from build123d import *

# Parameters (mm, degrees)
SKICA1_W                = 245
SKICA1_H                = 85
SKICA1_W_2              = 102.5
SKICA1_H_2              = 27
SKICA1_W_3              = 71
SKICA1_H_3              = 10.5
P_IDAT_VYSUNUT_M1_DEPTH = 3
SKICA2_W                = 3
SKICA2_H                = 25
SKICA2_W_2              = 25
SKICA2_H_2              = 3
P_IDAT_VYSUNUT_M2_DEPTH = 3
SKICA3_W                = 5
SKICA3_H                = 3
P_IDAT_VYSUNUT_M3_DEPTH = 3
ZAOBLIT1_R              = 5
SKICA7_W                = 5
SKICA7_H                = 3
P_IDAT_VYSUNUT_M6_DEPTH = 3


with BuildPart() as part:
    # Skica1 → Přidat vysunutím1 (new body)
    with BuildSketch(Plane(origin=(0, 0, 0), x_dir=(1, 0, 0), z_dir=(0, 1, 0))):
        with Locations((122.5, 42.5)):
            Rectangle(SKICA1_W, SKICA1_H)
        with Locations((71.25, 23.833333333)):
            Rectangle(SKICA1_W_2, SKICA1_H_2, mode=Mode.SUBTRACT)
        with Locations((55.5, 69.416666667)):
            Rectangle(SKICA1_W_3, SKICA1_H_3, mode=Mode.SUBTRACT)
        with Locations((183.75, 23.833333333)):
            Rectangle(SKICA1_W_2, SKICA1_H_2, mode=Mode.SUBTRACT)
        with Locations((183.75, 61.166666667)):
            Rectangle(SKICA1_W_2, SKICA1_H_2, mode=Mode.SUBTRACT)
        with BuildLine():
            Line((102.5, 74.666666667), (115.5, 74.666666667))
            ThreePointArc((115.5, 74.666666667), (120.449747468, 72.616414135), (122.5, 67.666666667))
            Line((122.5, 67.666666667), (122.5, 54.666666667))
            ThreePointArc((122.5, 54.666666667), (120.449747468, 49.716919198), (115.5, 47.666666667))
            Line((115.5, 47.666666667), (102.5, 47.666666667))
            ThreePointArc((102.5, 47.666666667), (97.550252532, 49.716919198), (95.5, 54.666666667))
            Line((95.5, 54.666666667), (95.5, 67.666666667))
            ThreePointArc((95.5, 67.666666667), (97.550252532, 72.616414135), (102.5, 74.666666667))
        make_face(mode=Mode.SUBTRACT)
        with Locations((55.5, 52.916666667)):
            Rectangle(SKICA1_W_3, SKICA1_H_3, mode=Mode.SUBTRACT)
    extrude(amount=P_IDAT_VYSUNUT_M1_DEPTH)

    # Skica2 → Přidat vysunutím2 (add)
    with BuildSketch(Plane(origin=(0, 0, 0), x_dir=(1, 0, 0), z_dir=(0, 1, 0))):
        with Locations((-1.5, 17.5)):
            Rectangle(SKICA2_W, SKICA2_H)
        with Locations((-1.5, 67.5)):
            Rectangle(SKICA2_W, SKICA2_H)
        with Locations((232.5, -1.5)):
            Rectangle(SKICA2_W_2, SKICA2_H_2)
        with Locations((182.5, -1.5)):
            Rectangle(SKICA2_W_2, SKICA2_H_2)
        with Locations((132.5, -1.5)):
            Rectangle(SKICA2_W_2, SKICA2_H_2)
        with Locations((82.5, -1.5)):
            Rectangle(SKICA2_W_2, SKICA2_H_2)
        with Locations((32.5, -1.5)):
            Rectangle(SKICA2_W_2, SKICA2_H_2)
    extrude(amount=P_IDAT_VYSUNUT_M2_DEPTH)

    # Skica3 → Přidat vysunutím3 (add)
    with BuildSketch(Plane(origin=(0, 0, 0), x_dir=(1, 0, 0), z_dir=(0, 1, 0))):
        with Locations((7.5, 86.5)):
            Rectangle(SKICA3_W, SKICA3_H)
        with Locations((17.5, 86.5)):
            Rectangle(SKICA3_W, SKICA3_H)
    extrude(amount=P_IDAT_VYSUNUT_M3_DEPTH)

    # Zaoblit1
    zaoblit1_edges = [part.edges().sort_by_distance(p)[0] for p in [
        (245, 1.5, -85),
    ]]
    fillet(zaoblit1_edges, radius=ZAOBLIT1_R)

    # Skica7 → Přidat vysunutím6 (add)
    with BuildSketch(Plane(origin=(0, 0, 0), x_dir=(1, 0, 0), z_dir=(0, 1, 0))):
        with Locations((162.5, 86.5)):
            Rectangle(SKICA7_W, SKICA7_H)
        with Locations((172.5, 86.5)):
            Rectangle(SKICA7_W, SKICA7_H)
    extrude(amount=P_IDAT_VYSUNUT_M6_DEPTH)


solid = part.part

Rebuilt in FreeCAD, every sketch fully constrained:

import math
import FreeCAD as App
import Part
import Sketcher
from FreeCAD import Vector
Q = App.Units.Quantity


def edges_at(feature, points):
    """Names of the edges that pass closest to the given points."""
    edges = feature.Shape.Edges
    near = lambda p: min(range(len(edges)), key=lambda i: edges[i].distToShape(Part.Vertex(*p))[0])
    return sorted({f"Edge{near(p) + 1}" for p in points})

doc = App.newDocument("Part")
body = doc.addObject("PartDesign::Body", "Body")

# Sketch on XZ plane
sketch1 = doc.addObject("Sketcher::SketchObject", "Sketch")
body.addObject(sketch1)
sketch1.AttachmentSupport = (doc.XZ_Plane, [""])
sketch1.MapMode = "FlatFace"
sketch1.addGeometry([
    Part.LineSegment(Vector(0, -85, 0), Vector(0, 0, 0)),  # 0
    Part.LineSegment(Vector(0, 0, 0), Vector(245, 0, 0)),  # 1
    Part.LineSegment(Vector(245, 0, 0), Vector(245, -85, 0)),  # 2
    Part.LineSegment(Vector(245, -85, 0), Vector(0, -85, 0)),  # 3
    Part.LineSegment(Vector(122.5, -10.333333, 0), Vector(20, -10.333333, 0)),  # 4
    Part.LineSegment(Vector(20, -10.333333, 0), Vector(20, -37.333333, 0)),  # 5
    Part.LineSegment(Vector(20, -37.333333, 0), Vector(122.5, -37.333333, 0)),  # 6
    Part.LineSegment(Vector(122.5, -37.333333, 0), Vector(122.5, -10.333333, 0)),  # 7
    Part.LineSegment(Vector(235, -10.333333, 0), Vector(132.5, -10.333333, 0)),  # 8
    Part.LineSegment(Vector(132.5, -10.333333, 0), Vector(132.5, -37.333333, 0)),  # 9
    Part.LineSegment(Vector(132.5, -37.333333, 0), Vector(235, -37.333333, 0)),  # 10
    Part.LineSegment(Vector(235, -37.333333, 0), Vector(235, -10.333333, 0)),  # 11
    Part.LineSegment(Vector(91, -47.666667, 0), Vector(20, -47.666667, 0)),  # 12
    Part.LineSegment(Vector(20, -47.666667, 0), Vector(20, -58.166667, 0)),  # 13
    Part.LineSegment(Vector(20, -58.166667, 0), Vector(91, -58.166667, 0)),  # 14
    Part.LineSegment(Vector(91, -58.166667, 0), Vector(91, -47.666667, 0)),  # 15
    Part.LineSegment(Vector(91, -64.166667, 0), Vector(20, -64.166667, 0)),  # 16
    Part.LineSegment(Vector(20, -64.166667, 0), Vector(20, -74.666667, 0)),  # 17
    Part.LineSegment(Vector(20, -74.666667, 0), Vector(91, -74.666667, 0)),  # 18
    Part.LineSegment(Vector(91, -74.666667, 0), Vector(91, -64.166667, 0)),  # 19
    Part.ArcOfCircle(Part.Circle(Vector(102.5, -67.666667, 0), Vector(0, 0, 1), 7), math.radians(-180), math.radians(-90)),  # 20
    Part.LineSegment(Vector(102.5, -74.666667, 0), Vector(115.5, -74.666667, 0)),  # 21
    Part.ArcOfCircle(Part.Circle(Vector(115.5, -67.666667, 0), Vector(0, 0, 1), 7), math.radians(-90), math.radians(0)),  # 22
    Part.LineSegment(Vector(122.5, -67.666667, 0), Vector(122.5, -54.666667, 0)),  # 23
    Part.ArcOfCircle(Part.Circle(Vector(115.5, -54.666667, 0), Vector(0, 0, 1), 7), math.radians(0), math.radians(90)),  # 24
    Part.LineSegment(Vector(115.5, -47.666667, 0), Vector(102.5, -47.666667, 0)),  # 25
    Part.ArcOfCircle(Part.Circle(Vector(102.5, -54.666667, 0), Vector(0, 0, 1), 7), math.radians(90), math.radians(180)),  # 26
    Part.LineSegment(Vector(95.5, -54.666667, 0), Vector(95.5, -67.666667, 0)),  # 27
    Part.LineSegment(Vector(235, -47.666667, 0), Vector(132.5, -47.666667, 0)),  # 28
    Part.LineSegment(Vector(132.5, -47.666667, 0), Vector(132.5, -74.666667, 0)),  # 29
    Part.LineSegment(Vector(132.5, -74.666667, 0), Vector(235, -74.666667, 0)),  # 30
    Part.LineSegment(Vector(235, -74.666667, 0), Vector(235, -47.666667, 0)),  # 31
], False)
sketch1.addConstraint([
    Sketcher.Constraint("Coincident", 0, 2, 1, 1),
    Sketcher.Constraint("Coincident", 1, 2, 2, 1),
    Sketcher.Constraint("Coincident", 2, 2, 3, 1),
    Sketcher.Constraint("Coincident", 3, 2, 0, 1),
    Sketcher.Constraint("Coincident", 4, 2, 5, 1),
    Sketcher.Constraint("Coincident", 5, 2, 6, 1),
    Sketcher.Constraint("Coincident", 6, 2, 7, 1),
    Sketcher.Constraint("Coincident", 7, 2, 4, 1),
    Sketcher.Constraint("Coincident", 8, 2, 9, 1),
    Sketcher.Constraint("Coincident", 9, 2, 10, 1),
    Sketcher.Constraint("Coincident", 10, 2, 11, 1),
    Sketcher.Constraint("Coincident", 11, 2, 8, 1),
    Sketcher.Constraint("Coincident", 12, 2, 13, 1),
    Sketcher.Constraint("Coincident", 13, 2, 14, 1),
    Sketcher.Constraint("Coincident", 14, 2, 15, 1),
    Sketcher.Constraint("Coincident", 15, 2, 12, 1),
    Sketcher.Constraint("Coincident", 16, 2, 17, 1),
    Sketcher.Constraint("Coincident", 17, 2, 18, 1),
    Sketcher.Constraint("Coincident", 18, 2, 19, 1),
    Sketcher.Constraint("Coincident", 19, 2, 16, 1),
    Sketcher.Constraint("Tangent", 20, 2, 21, 1),
    Sketcher.Constraint("Tangent", 21, 2, 22, 1),
    Sketcher.Constraint("Tangent", 22, 2, 23, 1),
    Sketcher.Constraint("Tangent", 23, 2, 24, 1),
    Sketcher.Constraint("Tangent", 24, 2, 25, 1),
    Sketcher.Constraint("Tangent", 25, 2, 26, 1),
    Sketcher.Constraint("Tangent", 26, 2, 27, 1),
    Sketcher.Constraint("Tangent", 27, 2, 20, 1),
    Sketcher.Constraint("Coincident", 28, 2, 29, 1),
    Sketcher.Constraint("Coincident", 29, 2, 30, 1),
    Sketcher.Constraint("Coincident", 30, 2, 31, 1),
    Sketcher.Constraint("Coincident", 31, 2, 28, 1),
    Sketcher.Constraint("Vertical", 0),
    Sketcher.Constraint("Horizontal", 1),
    Sketcher.Constraint("Vertical", 2),
    Sketcher.Constraint("Horizontal", 3),
    Sketcher.Constraint("Horizontal", 4),
    Sketcher.Constraint("Vertical", 5),
    Sketcher.Constraint("Horizontal", 6),
    Sketcher.Constraint("Vertical", 7),
    Sketcher.Constraint("Horizontal", 8),
    Sketcher.Constraint("Vertical", 9),
    Sketcher.Constraint("Horizontal", 10),
    Sketcher.Constraint("Vertical", 11),
    Sketcher.Constraint("Horizontal", 12),
    Sketcher.Constraint("Vertical", 13),
    Sketcher.Constraint("Horizontal", 14),
    Sketcher.Constraint("Vertical", 15),
    Sketcher.Constraint("Horizontal", 16),
    Sketcher.Constraint("Vertical", 17),
    Sketcher.Constraint("Horizontal", 18),
    Sketcher.Constraint("Vertical", 19),
    Sketcher.Constraint("Horizontal", 21),
    Sketcher.Constraint("Vertical", 23),
    Sketcher.Constraint("Horizontal", 25),
    Sketcher.Constraint("Vertical", 27),
    Sketcher.Constraint("Horizontal", 28),
    Sketcher.Constraint("Vertical", 29),
    Sketcher.Constraint("Horizontal", 30),
    Sketcher.Constraint("Vertical", 31),
    Sketcher.Constraint("Coincident", 0, 2, -1, 1),
    Sketcher.Constraint("Equal", 20, 22),
    Sketcher.Constraint("Equal", 22, 24),
    Sketcher.Constraint("Equal", 24, 26),
    Sketcher.Constraint("Horizontal", 7, 2, 8, 2),
    Sketcher.Constraint("Horizontal", 6, 2, 9, 2),
    Sketcher.Constraint("Horizontal", 18, 2, 20, 2),
    Sketcher.Constraint("Horizontal", 15, 2, 24, 2),
    Sketcher.Constraint("Horizontal", 25, 2, 28, 2),
    Sketcher.Constraint("Horizontal", 21, 2, 29, 2),
    Sketcher.Constraint("Vertical", 5, 2, 12, 2),
    Sketcher.Constraint("Vertical", 13, 2, 16, 2),
    Sketcher.Constraint("Vertical", 15, 2, 18, 2),
    Sketcher.Constraint("Vertical", 7, 2, 22, 2),
    Sketcher.Constraint("Vertical", 9, 2, 28, 2),
    Sketcher.Constraint("Vertical", 11, 2, 30, 2),
    Sketcher.Constraint("Equal", 6, 8),
    Sketcher.Constraint("Equal", 15, 17),
    Sketcher.Constraint("Equal", 25, 23),
    Sketcher.Constraint("Equal", 11, 29),
    Sketcher.Constraint("Radius", 20, Q("7 mm")),
    Sketcher.Constraint("DistanceX", 1, 1, 1, 2, Q("245 mm")),
    Sketcher.Constraint("DistanceX", 12, 2, 12, 1, Q("71 mm")),
    Sketcher.Constraint("DistanceX", 21, 1, 21, 2, Q("13 mm")),
    Sketcher.Constraint("DistanceY", 0, 1, 0, 2, Q("85 mm")),
    Sketcher.Constraint("DistanceX", 4, 2, 4, 1, Q("102.5 mm")),
    Sketcher.Constraint("DistanceY", 13, 2, 13, 1, Q("10.5 mm")),
    Sketcher.Constraint("DistanceX", -1, 1, 4, 2, Q("20 mm")),
    Sketcher.Constraint("DistanceX", -1, 1, 10, 2, Q("235 mm")),
    Sketcher.Constraint("DistanceY", 20, 3, -1, 1, Q("67.666667 mm")),
    Sketcher.Constraint("DistanceY", 4, 2, -1, 1, Q("10.333333 mm")),
])
pad1 = doc.addObject("PartDesign::Pad", "Pad")
body.addObject(pad1)
pad1.Profile = sketch1
pad1.Length = 3
pad1.Reversed = True

# Sketch on XZ plane
sketch2 = doc.addObject("Sketcher::SketchObject", "Sketch001")
body.addObject(sketch2)
sketch2.AttachmentSupport = (doc.XZ_Plane, [""])
sketch2.MapMode = "FlatFace"
sketch2.addGeometry([
    Part.LineSegment(Vector(-3, -30, 0), Vector(-3, -5, 0)),  # 0
    Part.LineSegment(Vector(-3, -5, 0), Vector(0, -5, 0)),  # 1
    Part.LineSegment(Vector(0, -5, 0), Vector(0, -30, 0)),  # 2
    Part.LineSegment(Vector(0, -30, 0), Vector(-3, -30, 0)),  # 3
    Part.LineSegment(Vector(-3, -80, 0), Vector(-3, -55, 0)),  # 4
    Part.LineSegment(Vector(-3, -55, 0), Vector(0, -55, 0)),  # 5
    Part.LineSegment(Vector(0, -55, 0), Vector(0, -80, 0)),  # 6
    Part.LineSegment(Vector(0, -80, 0), Vector(-3, -80, 0)),  # 7
    Part.LineSegment(Vector(220, 0, 0), Vector(220, 3, 0)),  # 8
    Part.LineSegment(Vector(220, 3, 0), Vector(245, 3, 0)),  # 9
    Part.LineSegment(Vector(245, 3, 0), Vector(245, 0, 0)),  # 10
    Part.LineSegment(Vector(245, 0, 0), Vector(220, 0, 0)),  # 11
    Part.LineSegment(Vector(170, 0, 0), Vector(170, 3, 0)),  # 12
    Part.LineSegment(Vector(170, 3, 0), Vector(195, 3, 0)),  # 13
    Part.LineSegment(Vector(195, 3, 0), Vector(195, 0, 0)),  # 14
    Part.LineSegment(Vector(195, 0, 0), Vector(170, 0, 0)),  # 15
    Part.LineSegment(Vector(120, 0, 0), Vector(120, 3, 0)),  # 16
    Part.LineSegment(Vector(120, 3, 0), Vector(145, 3, 0)),  # 17
    Part.LineSegment(Vector(145, 3, 0), Vector(145, 0, 0)),  # 18
    Part.LineSegment(Vector(145, 0, 0), Vector(120, 0, 0)),  # 19
    Part.LineSegment(Vector(70, 0, 0), Vector(70, 3, 0)),  # 20
    Part.LineSegment(Vector(70, 3, 0), Vector(95, 3, 0)),  # 21
    Part.LineSegment(Vector(95, 3, 0), Vector(95, 0, 0)),  # 22
    Part.LineSegment(Vector(95, 0, 0), Vector(70, 0, 0)),  # 23
    Part.LineSegment(Vector(20, 0, 0), Vector(20, 3, 0)),  # 24
    Part.LineSegment(Vector(20, 3, 0), Vector(45, 3, 0)),  # 25
    Part.LineSegment(Vector(45, 3, 0), Vector(45, 0, 0)),  # 26
    Part.LineSegment(Vector(45, 0, 0), Vector(20, 0, 0)),  # 27
], False)
sketch2.addConstraint([
    Sketcher.Constraint("Coincident", 0, 2, 1, 1),
    Sketcher.Constraint("Coincident", 1, 2, 2, 1),
    Sketcher.Constraint("Coincident", 2, 2, 3, 1),
    Sketcher.Constraint("Coincident", 3, 2, 0, 1),
    Sketcher.Constraint("Coincident", 4, 2, 5, 1),
    Sketcher.Constraint("Coincident", 5, 2, 6, 1),
    Sketcher.Constraint("Coincident", 6, 2, 7, 1),
    Sketcher.Constraint("Coincident", 7, 2, 4, 1),
    Sketcher.Constraint("Coincident", 8, 2, 9, 1),
    Sketcher.Constraint("Coincident", 9, 2, 10, 1),
    Sketcher.Constraint("Coincident", 10, 2, 11, 1),
    Sketcher.Constraint("Coincident", 11, 2, 8, 1),
    Sketcher.Constraint("Coincident", 12, 2, 13, 1),
    Sketcher.Constraint("Coincident", 13, 2, 14, 1),
    Sketcher.Constraint("Coincident", 14, 2, 15, 1),
    Sketcher.Constraint("Coincident", 15, 2, 12, 1),
    Sketcher.Constraint("Coincident", 16, 2, 17, 1),
    Sketcher.Constraint("Coincident", 17, 2, 18, 1),
    Sketcher.Constraint("Coincident", 18, 2, 19, 1),
    Sketcher.Constraint("Coincident", 19, 2, 16, 1),
    Sketcher.Constraint("Coincident", 20, 2, 21, 1),
    Sketcher.Constraint("Coincident", 21, 2, 22, 1),
    Sketcher.Constraint("Coincident", 22, 2, 23, 1),
    Sketcher.Constraint("Coincident", 23, 2, 20, 1),
    Sketcher.Constraint("Coincident", 24, 2, 25, 1),
    Sketcher.Constraint("Coincident", 25, 2, 26, 1),
    Sketcher.Constraint("Coincident", 26, 2, 27, 1),
    Sketcher.Constraint("Coincident", 27, 2, 24, 1),
    Sketcher.Constraint("Vertical", 0),
    Sketcher.Constraint("Horizontal", 1),
    Sketcher.Constraint("Vertical", 2),
    Sketcher.Constraint("Horizontal", 3),
    Sketcher.Constraint("Vertical", 4),
    Sketcher.Constraint("Horizontal", 5),
    Sketcher.Constraint("Vertical", 6),
    Sketcher.Constraint("Horizontal", 7),
    Sketcher.Constraint("Vertical", 8),
    Sketcher.Constraint("Horizontal", 9),
    Sketcher.Constraint("Vertical", 10),
    Sketcher.Constraint("Horizontal", 11),
    Sketcher.Constraint("Vertical", 12),
    Sketcher.Constraint("Horizontal", 13),
    Sketcher.Constraint("Vertical", 14),
    Sketcher.Constraint("Horizontal", 15),
    Sketcher.Constraint("Vertical", 16),
    Sketcher.Constraint("Horizontal", 17),
    Sketcher.Constraint("Vertical", 18),
    Sketcher.Constraint("Horizontal", 19),
    Sketcher.Constraint("Vertical", 20),
    Sketcher.Constraint("Horizontal", 21),
    Sketcher.Constraint("Vertical", 22),
    Sketcher.Constraint("Horizontal", 23),
    Sketcher.Constraint("Vertical", 24),
    Sketcher.Constraint("Horizontal", 25),
    Sketcher.Constraint("Vertical", 26),
    Sketcher.Constraint("Horizontal", 27),
    Sketcher.Constraint("PointOnObject", 1, 2, -2),
    Sketcher.Constraint("PointOnObject", 5, 2, -2),
    Sketcher.Constraint("PointOnObject", 10, 2, -1),
    Sketcher.Constraint("PointOnObject", 14, 2, -1),
    Sketcher.Constraint("PointOnObject", 18, 2, -1),
    Sketcher.Constraint("PointOnObject", 22, 2, -1),
    Sketcher.Constraint("PointOnObject", 26, 2, -1),
    Sketcher.Constraint("Horizontal", 9, 2, 12, 2),
    Sketcher.Constraint("Horizontal", 13, 2, 16, 2),
    Sketcher.Constraint("Horizontal", 17, 2, 20, 2),
    Sketcher.Constraint("Horizontal", 21, 2, 24, 2),
    Sketcher.Constraint("Vertical", 3, 2, 4, 2),
    Sketcher.Constraint("Equal", 11, 13),
    Sketcher.Constraint("Equal", 15, 17),
    Sketcher.Constraint("Equal", 19, 21),
    Sketcher.Constraint("Equal", 23, 25),
    Sketcher.Constraint("Equal", 27, 0),
    Sketcher.Constraint("Equal", 2, 4),
    Sketcher.Constraint("Equal", 7, 8),
    Sketcher.Constraint("DistanceX", 1, 1, 1, 2, Q("3 mm")),
    Sketcher.Constraint("DistanceX", 9, 1, 9, 2, Q("25 mm")),
    Sketcher.Constraint("DistanceY", 0, 2, -1, 1, Q("5 mm")),
    Sketcher.Constraint("DistanceY", 4, 2, -1, 1, Q("55 mm")),
    Sketcher.Constraint("DistanceX", -1, 1, 8, 2, Q("220 mm")),
    Sketcher.Constraint("DistanceX", -1, 1, 12, 2, Q("170 mm")),
    Sketcher.Constraint("DistanceX", -1, 1, 16, 2, Q("120 mm")),
    Sketcher.Constraint("DistanceX", -1, 1, 20, 2, Q("70 mm")),
    Sketcher.Constraint("DistanceX", -1, 1, 24, 2, Q("20 mm")),
])
pad2 = doc.addObject("PartDesign::Pad", "Pad001")
body.addObject(pad2)
pad2.Profile = sketch2
pad2.Length = 3
pad2.Reversed = True

# Sketch on XZ plane
sketch3 = doc.addObject("Sketcher::SketchObject", "Sketch002")
body.addObject(sketch3)
sketch3.AttachmentSupport = (doc.XZ_Plane, [""])
sketch3.MapMode = "FlatFace"
sketch3.addGeometry([
    Part.LineSegment(Vector(5, -88, 0), Vector(5, -85, 0)),  # 0
    Part.LineSegment(Vector(5, -85, 0), Vector(10, -85, 0)),  # 1
    Part.LineSegment(Vector(10, -85, 0), Vector(10, -88, 0)),  # 2
    Part.LineSegment(Vector(10, -88, 0), Vector(5, -88, 0)),  # 3
    Part.LineSegment(Vector(15, -88, 0), Vector(15, -85, 0)),  # 4
    Part.LineSegment(Vector(15, -85, 0), Vector(20, -85, 0)),  # 5
    Part.LineSegment(Vector(20, -85, 0), Vector(20, -88, 0)),  # 6
    Part.LineSegment(Vector(20, -88, 0), Vector(15, -88, 0)),  # 7
], False)
sketch3.addConstraint([
    Sketcher.Constraint("Coincident", 0, 2, 1, 1),
    Sketcher.Constraint("Coincident", 1, 2, 2, 1),
    Sketcher.Constraint("Coincident", 2, 2, 3, 1),
    Sketcher.Constraint("Coincident", 3, 2, 0, 1),
    Sketcher.Constraint("Coincident", 4, 2, 5, 1),
    Sketcher.Constraint("Coincident", 5, 2, 6, 1),
    Sketcher.Constraint("Coincident", 6, 2, 7, 1),
    Sketcher.Constraint("Coincident", 7, 2, 4, 1),
    Sketcher.Constraint("Vertical", 0),
    Sketcher.Constraint("Horizontal", 1),
    Sketcher.Constraint("Vertical", 2),
    Sketcher.Constraint("Horizontal", 3),
    Sketcher.Constraint("Vertical", 4),
    Sketcher.Constraint("Horizontal", 5),
    Sketcher.Constraint("Vertical", 6),
    Sketcher.Constraint("Horizontal", 7),
    Sketcher.Constraint("Horizontal", 1, 2, 4, 2),
    Sketcher.Constraint("Horizontal", 3, 2, 6, 2),
    Sketcher.Constraint("Equal", 3, 5),
    Sketcher.Constraint("DistanceX", 1, 1, 1, 2, Q("5 mm")),
    Sketcher.Constraint("DistanceY", 0, 1, 0, 2, Q("3 mm")),
    Sketcher.Constraint("DistanceX", -1, 1, 0, 2, Q("5 mm")),
    Sketcher.Constraint("DistanceY", 0, 2, -1, 1, Q("85 mm")),
    Sketcher.Constraint("DistanceX", -1, 1, 4, 2, Q("15 mm")),
])
pad3 = doc.addObject("PartDesign::Pad", "Pad002")
body.addObject(pad3)
pad3.Profile = sketch3
pad3.Length = 3
pad3.Reversed = True
doc.recompute()

fillet = doc.addObject("PartDesign::Fillet", "Fillet")
body.addObject(fillet)
fillet.Base = (pad3, edges_at(pad3, [(245, 1.5, -85)]))
fillet.Radius = 5

# Sketch on XZ plane
sketch4 = doc.addObject("Sketcher::SketchObject", "Sketch003")
body.addObject(sketch4)
sketch4.AttachmentSupport = (doc.XZ_Plane, [""])
sketch4.MapMode = "FlatFace"
sketch4.addGeometry([
    Part.LineSegment(Vector(160, -88, 0), Vector(160, -85, 0)),  # 0
    Part.LineSegment(Vector(160, -85, 0), Vector(165, -85, 0)),  # 1
    Part.LineSegment(Vector(165, -85, 0), Vector(165, -88, 0)),  # 2
    Part.LineSegment(Vector(165, -88, 0), Vector(160, -88, 0)),  # 3
    Part.LineSegment(Vector(170, -88, 0), Vector(170, -85, 0)),  # 4
    Part.LineSegment(Vector(170, -85, 0), Vector(175, -85, 0)),  # 5
    Part.LineSegment(Vector(175, -85, 0), Vector(175, -88, 0)),  # 6
    Part.LineSegment(Vector(175, -88, 0), Vector(170, -88, 0)),  # 7
], False)
sketch4.addConstraint([
    Sketcher.Constraint("Coincident", 0, 2, 1, 1),
    Sketcher.Constraint("Coincident", 1, 2, 2, 1),
    Sketcher.Constraint("Coincident", 2, 2, 3, 1),
    Sketcher.Constraint("Coincident", 3, 2, 0, 1),
    Sketcher.Constraint("Coincident", 4, 2, 5, 1),
    Sketcher.Constraint("Coincident", 5, 2, 6, 1),
    Sketcher.Constraint("Coincident", 6, 2, 7, 1),
    Sketcher.Constraint("Coincident", 7, 2, 4, 1),
    Sketcher.Constraint("Vertical", 0),
    Sketcher.Constraint("Horizontal", 1),
    Sketcher.Constraint("Vertical", 2),
    Sketcher.Constraint("Horizontal", 3),
    Sketcher.Constraint("Vertical", 4),
    Sketcher.Constraint("Horizontal", 5),
    Sketcher.Constraint("Vertical", 6),
    Sketcher.Constraint("Horizontal", 7),
    Sketcher.Constraint("Horizontal", 1, 2, 4, 2),
    Sketcher.Constraint("Horizontal", 3, 2, 6, 2),
    Sketcher.Constraint("Equal", 3, 5),
    Sketcher.Constraint("DistanceX", 1, 1, 1, 2, Q("5 mm")),
    Sketcher.Constraint("DistanceY", 0, 1, 0, 2, Q("3 mm")),
    Sketcher.Constraint("DistanceX", -1, 1, 0, 2, Q("160 mm")),
    Sketcher.Constraint("DistanceY", 0, 2, -1, 1, Q("85 mm")),
    Sketcher.Constraint("DistanceX", -1, 1, 4, 2, Q("170 mm")),
])
pad4 = doc.addObject("PartDesign::Pad", "Pad003")
body.addObject(pad4)
pad4.Profile = sketch4
pad4.Length = 3
pad4.Reversed = True

doc.recompute()
